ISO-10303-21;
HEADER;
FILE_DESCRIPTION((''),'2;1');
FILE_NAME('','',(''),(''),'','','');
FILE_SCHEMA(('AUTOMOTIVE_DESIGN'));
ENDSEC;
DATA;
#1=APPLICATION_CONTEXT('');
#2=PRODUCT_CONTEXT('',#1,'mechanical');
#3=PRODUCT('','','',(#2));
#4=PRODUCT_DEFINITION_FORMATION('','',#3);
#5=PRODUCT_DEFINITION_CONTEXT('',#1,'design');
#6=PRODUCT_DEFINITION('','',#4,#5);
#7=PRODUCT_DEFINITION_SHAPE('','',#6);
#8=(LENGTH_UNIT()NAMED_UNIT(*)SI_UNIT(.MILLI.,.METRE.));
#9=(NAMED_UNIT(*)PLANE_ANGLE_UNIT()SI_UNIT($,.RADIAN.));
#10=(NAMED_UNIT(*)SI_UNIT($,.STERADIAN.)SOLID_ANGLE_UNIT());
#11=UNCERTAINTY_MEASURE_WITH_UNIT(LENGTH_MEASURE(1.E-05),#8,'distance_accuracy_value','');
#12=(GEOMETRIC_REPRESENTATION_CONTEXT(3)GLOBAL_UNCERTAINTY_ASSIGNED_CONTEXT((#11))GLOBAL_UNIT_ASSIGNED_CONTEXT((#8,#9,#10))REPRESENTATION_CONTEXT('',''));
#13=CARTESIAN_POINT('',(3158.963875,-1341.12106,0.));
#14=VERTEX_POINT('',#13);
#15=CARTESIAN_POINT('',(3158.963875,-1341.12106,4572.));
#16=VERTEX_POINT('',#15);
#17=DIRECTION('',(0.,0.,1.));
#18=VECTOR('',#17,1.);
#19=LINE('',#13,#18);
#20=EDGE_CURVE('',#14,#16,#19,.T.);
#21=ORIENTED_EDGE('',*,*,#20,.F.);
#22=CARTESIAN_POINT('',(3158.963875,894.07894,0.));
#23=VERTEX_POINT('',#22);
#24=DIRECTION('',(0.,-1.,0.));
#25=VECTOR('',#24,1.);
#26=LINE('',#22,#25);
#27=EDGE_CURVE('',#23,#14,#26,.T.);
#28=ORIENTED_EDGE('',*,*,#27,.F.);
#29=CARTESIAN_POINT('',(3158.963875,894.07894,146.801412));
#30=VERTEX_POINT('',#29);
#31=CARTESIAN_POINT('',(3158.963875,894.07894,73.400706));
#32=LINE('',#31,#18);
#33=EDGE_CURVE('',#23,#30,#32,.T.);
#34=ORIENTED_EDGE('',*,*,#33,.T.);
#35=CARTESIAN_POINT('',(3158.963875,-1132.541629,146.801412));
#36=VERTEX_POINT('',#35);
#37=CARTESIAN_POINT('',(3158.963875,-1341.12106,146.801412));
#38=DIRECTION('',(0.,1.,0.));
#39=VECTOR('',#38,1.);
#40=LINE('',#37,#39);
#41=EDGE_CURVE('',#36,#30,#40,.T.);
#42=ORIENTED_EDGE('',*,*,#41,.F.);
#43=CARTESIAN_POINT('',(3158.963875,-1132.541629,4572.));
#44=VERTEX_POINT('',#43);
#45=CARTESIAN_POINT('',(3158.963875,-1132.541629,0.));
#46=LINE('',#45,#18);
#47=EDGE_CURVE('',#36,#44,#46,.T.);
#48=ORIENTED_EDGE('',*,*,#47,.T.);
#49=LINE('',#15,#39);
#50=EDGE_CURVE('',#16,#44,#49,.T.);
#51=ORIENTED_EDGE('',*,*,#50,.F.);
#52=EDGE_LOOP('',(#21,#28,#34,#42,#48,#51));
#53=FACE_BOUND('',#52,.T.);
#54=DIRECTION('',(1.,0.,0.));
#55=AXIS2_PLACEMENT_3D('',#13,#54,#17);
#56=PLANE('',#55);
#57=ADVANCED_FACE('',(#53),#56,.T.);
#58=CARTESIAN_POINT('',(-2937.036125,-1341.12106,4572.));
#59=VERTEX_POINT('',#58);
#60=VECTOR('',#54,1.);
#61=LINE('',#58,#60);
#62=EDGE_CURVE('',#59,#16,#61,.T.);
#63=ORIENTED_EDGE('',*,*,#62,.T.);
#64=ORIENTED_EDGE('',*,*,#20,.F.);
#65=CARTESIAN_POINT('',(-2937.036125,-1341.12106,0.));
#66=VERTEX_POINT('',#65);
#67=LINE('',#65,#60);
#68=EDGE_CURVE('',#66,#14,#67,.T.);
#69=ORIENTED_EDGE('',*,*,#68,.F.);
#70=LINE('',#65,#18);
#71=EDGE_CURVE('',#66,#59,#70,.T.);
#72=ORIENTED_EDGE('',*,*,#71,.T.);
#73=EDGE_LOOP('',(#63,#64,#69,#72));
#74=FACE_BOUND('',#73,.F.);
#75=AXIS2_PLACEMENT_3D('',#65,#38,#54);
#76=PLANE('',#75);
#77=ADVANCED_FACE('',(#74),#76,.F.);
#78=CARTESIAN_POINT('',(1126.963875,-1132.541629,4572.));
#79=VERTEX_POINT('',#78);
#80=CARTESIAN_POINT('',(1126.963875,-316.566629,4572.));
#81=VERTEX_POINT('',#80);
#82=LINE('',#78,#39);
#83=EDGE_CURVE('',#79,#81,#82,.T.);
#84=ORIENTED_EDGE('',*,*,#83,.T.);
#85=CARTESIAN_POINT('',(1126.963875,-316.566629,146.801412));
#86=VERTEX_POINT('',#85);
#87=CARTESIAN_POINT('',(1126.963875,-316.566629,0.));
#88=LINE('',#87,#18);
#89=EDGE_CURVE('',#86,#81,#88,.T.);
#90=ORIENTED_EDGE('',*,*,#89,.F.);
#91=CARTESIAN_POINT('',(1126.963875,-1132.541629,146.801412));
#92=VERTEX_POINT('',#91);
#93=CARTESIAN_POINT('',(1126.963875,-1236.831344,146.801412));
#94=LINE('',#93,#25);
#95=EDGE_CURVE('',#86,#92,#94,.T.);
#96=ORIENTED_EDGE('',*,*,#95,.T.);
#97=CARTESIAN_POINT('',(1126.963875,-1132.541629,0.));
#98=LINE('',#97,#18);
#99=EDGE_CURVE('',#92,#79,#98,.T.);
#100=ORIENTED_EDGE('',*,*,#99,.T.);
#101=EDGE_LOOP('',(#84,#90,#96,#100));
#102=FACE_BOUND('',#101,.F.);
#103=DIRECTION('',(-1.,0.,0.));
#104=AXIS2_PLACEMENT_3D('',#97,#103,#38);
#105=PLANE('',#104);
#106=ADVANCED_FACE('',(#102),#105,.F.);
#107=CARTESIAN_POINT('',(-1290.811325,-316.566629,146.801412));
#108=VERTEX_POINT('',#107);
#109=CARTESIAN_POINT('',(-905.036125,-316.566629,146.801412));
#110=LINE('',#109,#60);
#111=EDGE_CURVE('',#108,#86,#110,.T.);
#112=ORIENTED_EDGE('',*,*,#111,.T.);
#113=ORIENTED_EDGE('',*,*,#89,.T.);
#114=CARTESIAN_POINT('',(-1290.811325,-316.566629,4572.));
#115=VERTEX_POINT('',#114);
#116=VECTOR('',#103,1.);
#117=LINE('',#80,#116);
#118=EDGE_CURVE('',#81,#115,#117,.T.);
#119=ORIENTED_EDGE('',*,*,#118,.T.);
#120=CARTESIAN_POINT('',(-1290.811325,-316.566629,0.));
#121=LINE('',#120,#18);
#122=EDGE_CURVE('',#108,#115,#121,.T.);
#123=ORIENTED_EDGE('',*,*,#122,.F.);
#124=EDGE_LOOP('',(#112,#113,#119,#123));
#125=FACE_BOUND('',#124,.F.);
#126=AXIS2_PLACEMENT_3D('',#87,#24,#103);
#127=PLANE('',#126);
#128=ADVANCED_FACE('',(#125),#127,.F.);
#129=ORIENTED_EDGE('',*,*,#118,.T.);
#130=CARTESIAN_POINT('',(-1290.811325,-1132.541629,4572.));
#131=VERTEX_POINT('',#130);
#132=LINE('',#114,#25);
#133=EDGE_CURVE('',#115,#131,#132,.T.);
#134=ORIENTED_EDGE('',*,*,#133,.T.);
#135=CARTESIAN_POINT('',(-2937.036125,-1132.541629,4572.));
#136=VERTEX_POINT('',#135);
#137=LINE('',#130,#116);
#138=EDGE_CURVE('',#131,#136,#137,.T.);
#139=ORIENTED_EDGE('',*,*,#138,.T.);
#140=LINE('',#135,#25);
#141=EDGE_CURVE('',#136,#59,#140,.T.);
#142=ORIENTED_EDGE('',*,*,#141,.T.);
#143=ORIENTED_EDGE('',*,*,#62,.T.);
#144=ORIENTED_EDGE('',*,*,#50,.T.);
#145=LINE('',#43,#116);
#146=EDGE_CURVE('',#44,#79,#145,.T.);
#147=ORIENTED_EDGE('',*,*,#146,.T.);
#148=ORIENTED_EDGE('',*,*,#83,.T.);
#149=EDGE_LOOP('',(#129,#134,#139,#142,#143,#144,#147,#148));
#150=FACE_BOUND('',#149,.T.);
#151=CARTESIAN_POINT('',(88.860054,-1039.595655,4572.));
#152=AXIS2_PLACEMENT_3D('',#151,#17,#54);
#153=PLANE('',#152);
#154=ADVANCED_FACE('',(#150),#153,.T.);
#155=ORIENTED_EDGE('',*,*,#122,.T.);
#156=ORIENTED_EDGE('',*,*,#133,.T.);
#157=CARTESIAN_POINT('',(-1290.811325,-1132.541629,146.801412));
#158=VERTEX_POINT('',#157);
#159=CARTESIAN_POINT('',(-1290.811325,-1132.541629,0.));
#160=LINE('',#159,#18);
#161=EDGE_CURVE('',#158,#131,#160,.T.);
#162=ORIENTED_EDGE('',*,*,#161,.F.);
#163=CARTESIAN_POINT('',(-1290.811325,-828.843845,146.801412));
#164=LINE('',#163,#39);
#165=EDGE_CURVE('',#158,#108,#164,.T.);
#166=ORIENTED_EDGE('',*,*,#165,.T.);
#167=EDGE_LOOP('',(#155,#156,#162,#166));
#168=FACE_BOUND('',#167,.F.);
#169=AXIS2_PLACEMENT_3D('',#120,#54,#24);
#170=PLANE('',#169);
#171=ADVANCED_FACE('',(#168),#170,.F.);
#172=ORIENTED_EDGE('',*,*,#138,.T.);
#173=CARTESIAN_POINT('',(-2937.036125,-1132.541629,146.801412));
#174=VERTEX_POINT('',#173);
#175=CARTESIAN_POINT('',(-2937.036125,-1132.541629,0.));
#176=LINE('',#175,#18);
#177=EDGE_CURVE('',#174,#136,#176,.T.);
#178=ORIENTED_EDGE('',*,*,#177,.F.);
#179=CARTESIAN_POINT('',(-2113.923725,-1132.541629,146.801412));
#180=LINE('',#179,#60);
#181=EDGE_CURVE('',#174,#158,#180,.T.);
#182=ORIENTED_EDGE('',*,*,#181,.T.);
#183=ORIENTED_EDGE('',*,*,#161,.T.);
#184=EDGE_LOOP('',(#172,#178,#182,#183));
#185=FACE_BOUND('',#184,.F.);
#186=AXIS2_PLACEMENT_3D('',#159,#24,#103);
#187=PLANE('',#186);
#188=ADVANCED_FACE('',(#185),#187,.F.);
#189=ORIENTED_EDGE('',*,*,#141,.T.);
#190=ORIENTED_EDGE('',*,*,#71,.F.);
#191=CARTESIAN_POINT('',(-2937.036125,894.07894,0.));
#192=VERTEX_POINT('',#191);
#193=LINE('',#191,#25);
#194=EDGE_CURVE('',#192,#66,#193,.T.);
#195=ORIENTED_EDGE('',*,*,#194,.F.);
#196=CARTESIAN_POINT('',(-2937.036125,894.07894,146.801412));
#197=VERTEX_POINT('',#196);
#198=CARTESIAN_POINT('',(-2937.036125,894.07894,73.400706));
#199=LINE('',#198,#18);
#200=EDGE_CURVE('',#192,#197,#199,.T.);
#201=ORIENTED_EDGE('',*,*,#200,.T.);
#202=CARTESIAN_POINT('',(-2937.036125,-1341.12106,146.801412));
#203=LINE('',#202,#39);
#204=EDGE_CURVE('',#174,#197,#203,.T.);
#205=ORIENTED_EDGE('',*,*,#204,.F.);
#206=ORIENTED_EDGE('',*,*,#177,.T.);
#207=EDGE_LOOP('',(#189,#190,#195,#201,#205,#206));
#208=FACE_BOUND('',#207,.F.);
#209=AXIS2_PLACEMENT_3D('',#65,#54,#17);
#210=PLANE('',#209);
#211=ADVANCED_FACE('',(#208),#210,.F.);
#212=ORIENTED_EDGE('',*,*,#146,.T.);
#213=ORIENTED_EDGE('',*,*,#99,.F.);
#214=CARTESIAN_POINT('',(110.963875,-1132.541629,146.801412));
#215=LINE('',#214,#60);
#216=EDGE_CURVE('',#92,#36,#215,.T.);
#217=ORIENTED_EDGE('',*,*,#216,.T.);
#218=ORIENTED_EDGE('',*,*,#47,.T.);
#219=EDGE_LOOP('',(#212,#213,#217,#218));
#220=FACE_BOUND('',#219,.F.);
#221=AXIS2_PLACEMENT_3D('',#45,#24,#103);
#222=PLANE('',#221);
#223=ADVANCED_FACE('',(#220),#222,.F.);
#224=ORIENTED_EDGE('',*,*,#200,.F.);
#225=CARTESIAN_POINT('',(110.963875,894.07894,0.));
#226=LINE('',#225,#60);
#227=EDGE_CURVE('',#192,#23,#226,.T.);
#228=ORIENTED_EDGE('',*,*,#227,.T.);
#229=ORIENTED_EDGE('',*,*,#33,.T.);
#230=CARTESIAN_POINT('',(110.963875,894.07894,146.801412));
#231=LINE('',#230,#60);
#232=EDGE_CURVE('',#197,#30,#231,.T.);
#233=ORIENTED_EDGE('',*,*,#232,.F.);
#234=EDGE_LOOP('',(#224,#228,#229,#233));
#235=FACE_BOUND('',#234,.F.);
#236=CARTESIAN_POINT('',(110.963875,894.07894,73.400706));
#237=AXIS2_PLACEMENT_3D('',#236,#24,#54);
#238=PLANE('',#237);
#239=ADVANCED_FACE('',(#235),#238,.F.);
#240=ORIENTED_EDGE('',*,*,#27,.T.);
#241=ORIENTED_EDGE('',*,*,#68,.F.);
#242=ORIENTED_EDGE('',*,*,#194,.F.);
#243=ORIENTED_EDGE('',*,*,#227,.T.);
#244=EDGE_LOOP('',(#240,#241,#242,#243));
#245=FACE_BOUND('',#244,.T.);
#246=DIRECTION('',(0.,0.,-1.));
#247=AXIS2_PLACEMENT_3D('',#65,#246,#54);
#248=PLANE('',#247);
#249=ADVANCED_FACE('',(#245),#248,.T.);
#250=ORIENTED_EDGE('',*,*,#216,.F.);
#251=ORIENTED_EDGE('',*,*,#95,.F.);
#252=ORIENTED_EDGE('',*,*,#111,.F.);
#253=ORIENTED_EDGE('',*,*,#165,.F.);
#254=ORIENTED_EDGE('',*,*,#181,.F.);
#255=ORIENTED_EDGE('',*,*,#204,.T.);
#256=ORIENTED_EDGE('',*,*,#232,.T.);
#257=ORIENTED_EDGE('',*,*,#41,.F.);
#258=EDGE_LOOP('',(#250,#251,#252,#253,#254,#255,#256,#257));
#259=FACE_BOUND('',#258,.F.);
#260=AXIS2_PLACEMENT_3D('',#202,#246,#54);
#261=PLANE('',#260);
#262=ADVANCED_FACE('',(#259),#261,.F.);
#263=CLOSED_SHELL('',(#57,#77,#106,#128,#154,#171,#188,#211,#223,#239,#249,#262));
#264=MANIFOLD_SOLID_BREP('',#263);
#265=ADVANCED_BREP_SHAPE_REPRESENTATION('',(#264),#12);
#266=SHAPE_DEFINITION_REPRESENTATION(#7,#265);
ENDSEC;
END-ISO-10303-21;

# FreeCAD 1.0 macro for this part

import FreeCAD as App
import Part
import Sketcher

V = App.Vector
Q = App.Units.Quantity


def add_polygon(sketch, points):
    """Adds a closed chain of lines whose ends are joined by coincident constraints."""
    first, n = sketch.GeometryCount, len(points)
    for a, b in zip(points, points[1:] + points[:1]):
        sketch.addGeometry(Part.LineSegment(App.Vector(*a, 0), App.Vector(*b, 0)), False)
    for i in range(n):
        sketch.addConstraint(Sketcher.Constraint("Coincident", first + i, 2, first + (i + 1) % n, 1))

doc = App.newDocument("Part")
body = doc.addObject("PartDesign::Body", "Body")

# Sketch on XY plane
sketch1 = body.newObject("Sketcher::SketchObject", "Sketch")
sketch1.AttachmentSupport = (doc.getObject("XY_Plane"), [""])
sketch1.MapMode = "FlatFace"
add_polygon(sketch1, [(-2937, -1133), (-2937, -1341), (3159, -1341), (3159, -1133), (1127, -1133), (1127, -317), (-1291, -317), (-1291, -1133)])  # lines 0-7
sketch1.addConstraint(Sketcher.Constraint("Vertical", 0))
sketch1.addConstraint(Sketcher.Constraint("Horizontal", 1))
sketch1.addConstraint(Sketcher.Constraint("Vertical", 2))
sketch1.addConstraint(Sketcher.Constraint("Horizontal", 3))
sketch1.addConstraint(Sketcher.Constraint("Vertical", 4))
sketch1.addConstraint(Sketcher.Constraint("Horizontal", 5))
sketch1.addConstraint(Sketcher.Constraint("Vertical", 6))
sketch1.addConstraint(Sketcher.Constraint("Horizontal", 7))
sketch1.addConstraint(Sketcher.Constraint("Horizontal", 3, 2, 6, 2))
sketch1.addConstraint(Sketcher.Constraint("DistanceX", 1, 1, 1, 2, Q("240 in")))
sketch1.addConstraint(Sketcher.Constraint("DistanceX", 3, 2, 3, 1, Q("80 in")))
sketch1.addConstraint(Sketcher.Constraint("DistanceX", 5, 2, 5, 1, Q("95.188 in")))
sketch1.addConstraint(Sketcher.Constraint("DistanceY", 4, 1, 4, 2, Q("32.125 in")))
sketch1.addConstraint(Sketcher.Constraint("DistanceY", 0, 2, 0, 1, 208.579431))
sketch1.addConstraint(Sketcher.Constraint("DistanceY", 0, 2, -1, 1, 1341.12106))
sketch1.addConstraint(Sketcher.Constraint("DistanceX", 0, 2, -1, 1, 2937.036125))
pad1 = body.newObject("PartDesign::Pad", "Pad")
pad1.Profile = sketch1
pad1.Length = Q("180 in")

# Sketch on XZ plane
sketch2 = body.newObject("Sketcher::SketchObject", "Sketch001")
sketch2.AttachmentSupport = (doc.getObject("XZ_Plane"), [""])
sketch2.MapMode = "FlatFace"
sketch2.AttachmentOffset = App.Placement(V(0, 0, 1341.12106), App.Rotation())
add_polygon(sketch2, [(-2937, 147), (-2937, 0), (3159, 0), (3159, 147)])  # lines 0-3
sketch2.addConstraint(Sketcher.Constraint("Vertical", 0))
sketch2.addConstraint(Sketcher.Constraint("Horizontal", 1))
sketch2.addConstraint(Sketcher.Constraint("Vertical", 2))
sketch2.addConstraint(Sketcher.Constraint("Horizontal", 3))
sketch2.addConstraint(Sketcher.Constraint("PointOnObject", 0, 2, -1))
sketch2.addConstraint(Sketcher.Constraint("DistanceX", 1, 1, 1, 2, Q("240 in")))
sketch2.addConstraint(Sketcher.Constraint("DistanceY", 0, 2, 0, 1, 146.801412))
sketch2.addConstraint(Sketcher.Constraint("DistanceX", 0, 2, -1, 1, 2937.036125))
pad2 = body.newObject("PartDesign::Pad", "Pad001")
pad2.Profile = sketch2
pad2.Length = Q("88 in")
pad2.Reversed = True

doc.recompute()
